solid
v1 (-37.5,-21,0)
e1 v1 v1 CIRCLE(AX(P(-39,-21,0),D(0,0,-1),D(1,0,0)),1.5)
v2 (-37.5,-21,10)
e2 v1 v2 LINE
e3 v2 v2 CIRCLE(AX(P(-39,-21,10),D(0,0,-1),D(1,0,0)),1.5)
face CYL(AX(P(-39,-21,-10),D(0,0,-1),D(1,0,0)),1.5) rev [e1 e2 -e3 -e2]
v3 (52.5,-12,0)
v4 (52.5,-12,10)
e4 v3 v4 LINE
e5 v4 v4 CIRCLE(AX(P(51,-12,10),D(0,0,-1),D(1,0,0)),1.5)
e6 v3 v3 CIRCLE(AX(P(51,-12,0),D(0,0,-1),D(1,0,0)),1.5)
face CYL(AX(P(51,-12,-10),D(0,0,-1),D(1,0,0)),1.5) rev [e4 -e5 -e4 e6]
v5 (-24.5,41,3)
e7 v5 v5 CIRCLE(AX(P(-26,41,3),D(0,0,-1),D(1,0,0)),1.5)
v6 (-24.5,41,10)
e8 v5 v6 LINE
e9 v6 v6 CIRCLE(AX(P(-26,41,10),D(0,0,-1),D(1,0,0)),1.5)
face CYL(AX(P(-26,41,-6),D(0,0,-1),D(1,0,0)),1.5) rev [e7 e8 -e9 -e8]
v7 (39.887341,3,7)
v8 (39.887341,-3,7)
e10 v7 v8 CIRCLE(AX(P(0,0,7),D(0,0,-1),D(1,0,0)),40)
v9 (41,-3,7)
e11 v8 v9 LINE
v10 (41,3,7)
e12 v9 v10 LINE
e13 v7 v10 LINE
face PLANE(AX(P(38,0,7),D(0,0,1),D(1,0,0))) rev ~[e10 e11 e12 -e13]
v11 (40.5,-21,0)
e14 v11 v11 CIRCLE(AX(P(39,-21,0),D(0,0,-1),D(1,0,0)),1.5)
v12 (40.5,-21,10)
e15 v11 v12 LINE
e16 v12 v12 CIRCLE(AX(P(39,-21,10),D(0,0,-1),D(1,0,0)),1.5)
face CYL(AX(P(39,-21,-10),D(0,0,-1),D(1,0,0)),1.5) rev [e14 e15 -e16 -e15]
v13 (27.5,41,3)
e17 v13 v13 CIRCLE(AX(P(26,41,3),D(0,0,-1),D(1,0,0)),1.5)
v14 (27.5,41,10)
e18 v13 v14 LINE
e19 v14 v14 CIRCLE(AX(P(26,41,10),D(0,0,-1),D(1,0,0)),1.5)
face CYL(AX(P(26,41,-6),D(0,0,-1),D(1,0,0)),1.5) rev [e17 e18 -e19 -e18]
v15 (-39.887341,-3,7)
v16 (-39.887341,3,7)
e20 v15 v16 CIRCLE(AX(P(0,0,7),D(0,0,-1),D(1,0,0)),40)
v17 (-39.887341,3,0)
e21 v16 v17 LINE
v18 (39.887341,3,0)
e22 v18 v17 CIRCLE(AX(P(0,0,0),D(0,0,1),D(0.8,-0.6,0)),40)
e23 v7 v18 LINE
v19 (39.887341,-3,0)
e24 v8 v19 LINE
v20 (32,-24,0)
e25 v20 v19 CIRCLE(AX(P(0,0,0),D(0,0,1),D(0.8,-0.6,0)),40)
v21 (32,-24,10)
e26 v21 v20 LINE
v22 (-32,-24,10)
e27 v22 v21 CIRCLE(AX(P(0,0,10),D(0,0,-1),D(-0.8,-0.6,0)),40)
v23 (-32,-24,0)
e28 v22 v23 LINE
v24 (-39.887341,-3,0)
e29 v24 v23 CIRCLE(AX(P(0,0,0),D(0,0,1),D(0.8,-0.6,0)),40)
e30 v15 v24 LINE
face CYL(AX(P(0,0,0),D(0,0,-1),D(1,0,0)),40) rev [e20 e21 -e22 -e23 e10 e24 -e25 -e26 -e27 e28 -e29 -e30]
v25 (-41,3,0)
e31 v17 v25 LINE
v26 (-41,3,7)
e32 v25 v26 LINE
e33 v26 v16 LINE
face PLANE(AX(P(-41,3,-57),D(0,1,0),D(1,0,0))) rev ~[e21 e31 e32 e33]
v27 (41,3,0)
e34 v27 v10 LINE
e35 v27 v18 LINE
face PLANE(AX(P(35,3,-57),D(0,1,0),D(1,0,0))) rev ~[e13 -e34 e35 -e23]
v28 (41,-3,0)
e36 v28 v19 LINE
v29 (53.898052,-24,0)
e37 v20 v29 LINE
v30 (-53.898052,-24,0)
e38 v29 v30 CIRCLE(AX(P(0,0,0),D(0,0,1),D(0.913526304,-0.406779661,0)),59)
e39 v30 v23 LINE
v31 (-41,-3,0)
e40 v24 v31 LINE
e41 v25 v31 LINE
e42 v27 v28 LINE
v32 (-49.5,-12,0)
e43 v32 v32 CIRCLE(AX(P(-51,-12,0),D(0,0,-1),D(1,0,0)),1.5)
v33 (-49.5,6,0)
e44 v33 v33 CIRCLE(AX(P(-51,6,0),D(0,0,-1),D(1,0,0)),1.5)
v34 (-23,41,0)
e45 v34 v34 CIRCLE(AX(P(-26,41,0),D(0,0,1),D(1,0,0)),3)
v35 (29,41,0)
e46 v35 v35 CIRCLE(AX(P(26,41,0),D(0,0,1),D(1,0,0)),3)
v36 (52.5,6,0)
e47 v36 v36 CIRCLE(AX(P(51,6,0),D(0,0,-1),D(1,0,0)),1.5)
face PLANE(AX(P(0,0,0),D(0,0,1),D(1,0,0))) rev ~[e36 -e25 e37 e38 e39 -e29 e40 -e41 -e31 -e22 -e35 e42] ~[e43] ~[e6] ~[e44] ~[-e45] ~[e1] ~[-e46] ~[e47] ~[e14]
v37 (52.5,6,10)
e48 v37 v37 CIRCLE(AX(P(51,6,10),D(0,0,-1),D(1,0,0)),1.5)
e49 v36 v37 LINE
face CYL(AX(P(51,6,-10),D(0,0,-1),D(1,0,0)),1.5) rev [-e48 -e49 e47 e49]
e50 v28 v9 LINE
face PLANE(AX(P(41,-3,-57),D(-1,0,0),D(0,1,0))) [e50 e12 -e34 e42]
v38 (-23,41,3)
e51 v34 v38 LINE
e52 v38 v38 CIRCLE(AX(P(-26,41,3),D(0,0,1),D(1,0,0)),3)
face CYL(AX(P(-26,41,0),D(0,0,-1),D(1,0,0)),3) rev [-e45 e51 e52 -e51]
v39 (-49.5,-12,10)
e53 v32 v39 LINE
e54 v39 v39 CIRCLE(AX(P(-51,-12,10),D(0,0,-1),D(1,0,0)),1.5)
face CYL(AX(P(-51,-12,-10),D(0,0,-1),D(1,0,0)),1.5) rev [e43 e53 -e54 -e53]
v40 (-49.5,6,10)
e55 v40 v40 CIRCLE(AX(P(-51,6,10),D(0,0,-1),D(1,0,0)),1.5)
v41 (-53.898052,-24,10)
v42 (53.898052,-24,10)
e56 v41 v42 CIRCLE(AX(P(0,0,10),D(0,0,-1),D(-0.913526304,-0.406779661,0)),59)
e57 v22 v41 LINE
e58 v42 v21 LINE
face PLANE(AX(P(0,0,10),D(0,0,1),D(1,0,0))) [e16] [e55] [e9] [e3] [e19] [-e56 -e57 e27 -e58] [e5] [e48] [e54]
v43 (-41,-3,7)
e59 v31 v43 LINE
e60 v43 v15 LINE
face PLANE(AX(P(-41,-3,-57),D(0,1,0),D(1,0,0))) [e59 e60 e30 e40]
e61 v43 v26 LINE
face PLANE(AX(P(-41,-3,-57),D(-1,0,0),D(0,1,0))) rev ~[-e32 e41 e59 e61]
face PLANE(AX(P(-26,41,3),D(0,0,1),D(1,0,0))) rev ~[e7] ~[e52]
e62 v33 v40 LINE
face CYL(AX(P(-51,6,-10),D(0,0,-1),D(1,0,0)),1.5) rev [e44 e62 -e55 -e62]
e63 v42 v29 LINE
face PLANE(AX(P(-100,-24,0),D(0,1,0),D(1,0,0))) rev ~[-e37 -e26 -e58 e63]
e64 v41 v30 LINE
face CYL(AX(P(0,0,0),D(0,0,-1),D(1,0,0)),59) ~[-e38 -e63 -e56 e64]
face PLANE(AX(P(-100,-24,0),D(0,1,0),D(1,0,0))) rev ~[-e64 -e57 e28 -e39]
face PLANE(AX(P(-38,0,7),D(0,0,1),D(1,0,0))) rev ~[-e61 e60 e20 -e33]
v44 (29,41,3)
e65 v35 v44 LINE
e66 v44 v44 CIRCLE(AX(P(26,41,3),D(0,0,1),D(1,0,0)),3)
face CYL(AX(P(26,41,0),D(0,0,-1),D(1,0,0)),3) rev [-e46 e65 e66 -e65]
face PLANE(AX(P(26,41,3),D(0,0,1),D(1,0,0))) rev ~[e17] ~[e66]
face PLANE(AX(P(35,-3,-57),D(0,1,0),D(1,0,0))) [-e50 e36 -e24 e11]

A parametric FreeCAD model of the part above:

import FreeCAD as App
import Part
import Sketcher

V = App.Vector

doc = App.newDocument("Part")
body = doc.addObject("PartDesign::Body", "Body")

sketch1 = doc.addObject("Sketcher::SketchObject", "Sketch")
body.addObject(sketch1)
sketch1.AttachmentSupport = (doc.XY_Plane, [""])
sketch1.MapMode = "FlatFace"
sketch1.AttachmentOffset = App.Placement(V(0, 0, -93), App.Rotation())
sketch1.addGeometry([
    Part.LineSegment(V(87, 3, 0), V(87, -3, 0)),
    Part.LineSegment(V(87, -3, 0), V(93, -3, 0)),
    Part.LineSegment(V(93, -3, 0), V(93, 3, 0)),
    Part.LineSegment(V(93, 3, 0), V(87, 3, 0)),
], False)
sketch1.addConstraint([
    Sketcher.Constraint("Coincident", 0, 2, 1, 1),
    Sketcher.Constraint("Coincident", 1, 2, 2, 1),
    Sketcher.Constraint("Coincident", 2, 2, 3, 1),
    Sketcher.Constraint("Coincident", 3, 2, 0, 1),
    Sketcher.Constraint("Vertical", 0),
    Sketcher.Constraint("Horizontal", 1),
    Sketcher.Constraint("Vertical", 2),
    Sketcher.Constraint("Horizontal", 3),
    Sketcher.Constraint("Equal", 3, 0),
    Sketcher.Constraint("DistanceX", 1, 1, 1, 2, 6.0),
    Sketcher.Constraint("DistanceX", -1, 1, 0, 2, 87.0),
    Sketcher.Constraint("DistanceY", 0, 2, -1, 1, 3.0),
])
pad1 = doc.addObject("PartDesign::Pad", "Pad")
body.addObject(pad1)
pad1.Profile = sketch1
pad1.Length = 64
body2 = doc.addObject("PartDesign::Body", "Body001")
body2.AllowCompound = True

sketch2 = doc.addObject("Sketcher::SketchObject", "Sketch001")
body2.addObject(sketch2)
sketch2.AttachmentSupport = (doc.getObject("XY_Plane001"), [""])
sketch2.MapMode = "FlatFace"
sketch2.AttachmentOffset = App.Placement(V(0, 0, -93), App.Rotation())
sketch2.addGeometry([
    Part.LineSegment(V(11, 3, 0), V(11, -3, 0)),
    Part.LineSegment(V(11, -3, 0), V(17, -3, 0)),
    Part.LineSegment(V(17, -3, 0), V(17, 3, 0)),
    Part.LineSegment(V(17, 3, 0), V(11, 3, 0)),
], False)
sketch2.addConstraint([
    Sketcher.Constraint("Coincident", 0, 2, 1, 1),
    Sketcher.Constraint("Coincident", 1, 2, 2, 1),
    Sketcher.Constraint("Coincident", 2, 2, 3, 1),
    Sketcher.Constraint("Coincident", 3, 2, 0, 1),
    Sketcher.Constraint("Vertical", 0),
    Sketcher.Constraint("Horizontal", 1),
    Sketcher.Constraint("Vertical", 2),
    Sketcher.Constraint("Horizontal", 3),
    Sketcher.Constraint("Equal", 3, 0),
    Sketcher.Constraint("DistanceX", 1, 1, 1, 2, 6.0),
    Sketcher.Constraint("DistanceX", -1, 1, 0, 2, 11.0),
    Sketcher.Constraint("DistanceY", 0, 2, -1, 1, 3.0),
])
pad2 = doc.addObject("PartDesign::Pad", "Pad001")
body2.addObject(pad2)
pad2.Profile = sketch2
pad2.Length = 64
doc.recompute()

boolean = doc.addObject("PartDesign::Boolean", "Boolean")
body2.addObject(boolean)
boolean.Type = "Fuse"
boolean.addObjects([body])
body3 = doc.addObject("PartDesign::Body", "Body002")
body3.AllowCompound = True
doc.recompute()

body2.Placement = App.Placement(V(-52, 0, 36), App.Rotation(V(0, 0, 1), 0))
boolean2 = doc.addObject("PartDesign::Boolean", "Boolean001")
body3.addObject(boolean2)
boolean2.Type = "Fuse"
boolean2.addObjects([body2])
body4 = doc.addObject("PartDesign::Body", "Body003")

sketch3 = doc.addObject("Sketcher::SketchObject", "Sketch002")
body4.addObject(sketch3)
sketch3.AttachmentSupport = (doc.getObject("XY_Plane003"), [""])
sketch3.MapMode = "FlatFace"
sketch3.AttachmentOffset = App.Placement(V(0, 0, -42), App.Rotation())
sketch3.addGeometry(Part.Circle(V(78, 41, 0), V(0, 0, 1), 3), False)
sketch3.addConstraint([
    Sketcher.Constraint("Diameter", 0, 6.0),
    Sketcher.Constraint("DistanceX", -1, 1, 0, 3, 78.0),
    Sketcher.Constraint("DistanceY", -1, 1, 0, 3, 41.0),
])
pad3 = doc.addObject("PartDesign::Pad", "Pad002")
body4.addObject(pad3)
pad3.Profile = sketch3
pad3.Length = 3
body5 = doc.addObject("PartDesign::Body", "Body004")
body5.AllowCompound = True

sketch4 = doc.addObject("Sketcher::SketchObject", "Sketch003")
body5.addObject(sketch4)
sketch4.AttachmentSupport = (doc.getObject("XY_Plane004"), [""])
sketch4.MapMode = "FlatFace"
sketch4.AttachmentOffset = App.Placement(V(0, 0, -42), App.Rotation())
sketch4.addGeometry(Part.Circle(V(26, 41, 0), V(0, 0, 1), 3), False)
sketch4.addConstraint([
    Sketcher.Constraint("Diameter", 0, 6.0),
    Sketcher.Constraint("DistanceX", -1, 1, 0, 3, 26.0),
    Sketcher.Constraint("DistanceY", -1, 1, 0, 3, 41.0),
])
pad4 = doc.addObject("PartDesign::Pad", "Pad003")
body5.addObject(pad4)
pad4.Profile = sketch4
pad4.Length = 3
doc.recompute()

boolean3 = doc.addObject("PartDesign::Boolean", "Boolean002")
body5.addObject(boolean3)
boolean3.Type = "Fuse"
boolean3.addObjects([body4])
body6 = doc.addObject("PartDesign::Body", "Body005")
body6.AllowCompound = True
doc.recompute()

body5.Placement = App.Placement(V(-52, 0, 42), App.Rotation(V(0, 0, 1), 0))
boolean4 = doc.addObject("PartDesign::Boolean", "Boolean003")
body6.addObject(boolean4)
boolean4.Type = "Fuse"
boolean4.addObjects([body5])
body7 = doc.addObject("PartDesign::Body", "Body006")

sketch5 = doc.addObject("Sketcher::SketchObject", "Sketch004")
body7.addObject(sketch5)
sketch5.AttachmentSupport = (doc.getObject("XY_Plane006"), [""])
sketch5.MapMode = "FlatFace"
sketch5.AttachmentOffset = App.Placement(V(0, 0, -42), App.Rotation())
sketch5.addGeometry(Part.Circle(V(78, 41, 0), V(0, 0, 1), 1.5), False)
sketch5.addConstraint([
    Sketcher.Constraint("Diameter", 0, 3.0),
    Sketcher.Constraint("DistanceX", -1, 1, 0, 3, 78.0),
    Sketcher.Constraint("DistanceY", -1, 1, 0, 3, 41.0),
])
pad5 = doc.addObject("PartDesign::Pad", "Pad004")
body7.addObject(pad5)
pad5.Profile = sketch5
pad5.Length = 32
body8 = doc.addObject("PartDesign::Body", "Body007")
body8.AllowCompound = True

sketch6 = doc.addObject("Sketcher::SketchObject", "Sketch005")
body8.addObject(sketch6)
sketch6.AttachmentSupport = (doc.getObject("XY_Plane007"), [""])
sketch6.MapMode = "FlatFace"
sketch6.AttachmentOffset = App.Placement(V(0, 0, -42), App.Rotation())
sketch6.addGeometry(Part.Circle(V(26, 41, 0), V(0, 0, 1), 1.5), False)
sketch6.addConstraint([
    Sketcher.Constraint("Diameter", 0, 3.0),
    Sketcher.Constraint("DistanceX", -1, 1, 0, 3, 26.0),
    Sketcher.Constraint("DistanceY", -1, 1, 0, 3, 41.0),
])
pad6 = doc.addObject("PartDesign::Pad", "Pad005")
body8.addObject(pad6)
pad6.Profile = sketch6
pad6.Length = 32
doc.recompute()

boolean5 = doc.addObject("PartDesign::Boolean", "Boolean004")
body8.addObject(boolean5)
boolean5.Type = "Fuse"
boolean5.addObjects([body7])
body9 = doc.addObject("PartDesign::Body", "Body008")
body9.AllowCompound = True
doc.recompute()

body8.Placement = App.Placement(V(-52, 0, 36), App.Rotation(V(0, 0, 1), 0))
boolean6 = doc.addObject("PartDesign::Boolean", "Boolean005")
body9.addObject(boolean6)
boolean6.Type = "Fuse"
boolean6.addObjects([body8])
body10 = doc.addObject("PartDesign::Body", "Body009")

sketch7 = doc.addObject("Sketcher::SketchObject", "Sketch006")
body10.addObject(sketch7)
sketch7.AttachmentSupport = (doc.getObject("XY_Plane009"), [""])
sketch7.MapMode = "FlatFace"
sketch7.AttachmentOffset = App.Placement(V(0, 0, -60), App.Rotation())
sketch7.addGeometry(Part.Circle(V(14, 0, 0), V(0, 0, 1), 1.5), False)
sketch7.addConstraint([
    Sketcher.Constraint("PointOnObject", 0, 3, -1),
    Sketcher.Constraint("Diameter", 0, 3.0),
    Sketcher.Constraint("DistanceX", -1, 1, 0, 3, 14.0),
])
pad7 = doc.addObject("PartDesign::Pad", "Pad006")
body10.addObject(pad7)
pad7.Profile = sketch7
pad7.Length = 100
body11 = doc.addObject("PartDesign::Body", "Body010")
body11.AllowCompound = True

sketch8 = doc.addObject("Sketcher::SketchObject", "Sketch007")
body11.addObject(sketch8)
sketch8.AttachmentSupport = (doc.getObject("XY_Plane010"), [""])
sketch8.MapMode = "FlatFace"
sketch8.AttachmentOffset = App.Placement(V(0, 0, -60), App.Rotation())
sketch8.addGeometry(Part.Circle(V(90, 0, 0), V(0, 0, 1), 1.5), False)
sketch8.addConstraint([
    Sketcher.Constraint("PointOnObject", 0, 3, -1),
    Sketcher.Constraint("Diameter", 0, 3.0),
    Sketcher.Constraint("DistanceX", -1, 1, 0, 3, 90.0),
])
pad8 = doc.addObject("PartDesign::Pad", "Pad007")
body11.addObject(pad8)
pad8.Profile = sketch8
pad8.Length = 100
doc.recompute()

boolean7 = doc.addObject("PartDesign::Boolean", "Boolean006")
body11.addObject(boolean7)
boolean7.Type = "Fuse"
boolean7.addObjects([body10])
body12 = doc.addObject("PartDesign::Body", "Body011")
body12.AllowCompound = True
doc.recompute()

body11.Placement = App.Placement(V(-52, 0, 0), App.Rotation(V(0, 0, 1), 0))
boolean8 = doc.addObject("PartDesign::Boolean", "Boolean007")
body12.addObject(boolean8)
boolean8.Type = "Fuse"
boolean8.addObjects([body11])
doc.recompute()

boolean9 = doc.addObject("PartDesign::Boolean", "Boolean008")
body12.addObject(boolean9)
boolean9.Type = "Fuse"
boolean9.addObjects([body9])
body13 = doc.addObject("PartDesign::Body", "Body012")

sketch9 = doc.addObject("Sketcher::SketchObject", "Sketch008")
body13.addObject(sketch9)
sketch9.AttachmentSupport = (doc.getObject("XY_Plane012"), [""])
sketch9.MapMode = "FlatFace"
sketch9.addGeometry(Part.Circle(V(-51, 6, 0), V(0, 0, 1), 1.5), False)
sketch9.addConstraint([
    Sketcher.Constraint("Diameter", 0, 3.0),
    Sketcher.Constraint("DistanceX", 0, 3, -1, 1, 51.0),
    Sketcher.Constraint("DistanceY", -1, 1, 0, 3, 6.0),
])
pad9 = doc.addObject("PartDesign::Pad", "Pad008")
body13.addObject(pad9)
pad9.Profile = sketch9
pad9.Length = 50
body14 = doc.addObject("PartDesign::Body", "Body013")

sketch10 = doc.addObject("Sketcher::SketchObject", "Sketch009")
body14.addObject(sketch10)
sketch10.AttachmentSupport = (doc.getObject("XY_Plane013"), [""])
sketch10.MapMode = "FlatFace"
sketch10.addGeometry(Part.Circle(V(-24, 18, 0), V(0, 0, 1), 1.5), False)
sketch10.addConstraint([
    Sketcher.Constraint("Diameter", 0, 3.0),
    Sketcher.Constraint("DistanceX", 0, 3, -1, 1, 24.0),
    Sketcher.Constraint("DistanceY", -1, 1, 0, 3, 18.0),
])
pad10 = doc.addObject("PartDesign::Pad", "Pad009")
body14.addObject(pad10)
pad10.Profile = sketch10
pad10.Length = 50
body15 = doc.addObject("PartDesign::Body", "Body014")

sketch11 = doc.addObject("Sketcher::SketchObject", "Sketch010")
body15.addObject(sketch11)
sketch11.AttachmentSupport = (doc.getObject("XY_Plane014"), [""])
sketch11.MapMode = "FlatFace"
sketch11.addGeometry(Part.Circle(V(24, 18, 0), V(0, 0, 1), 1.5), False)
sketch11.addConstraint([
    Sketcher.Constraint("Diameter", 0, 3.0),
    Sketcher.Constraint("DistanceX", -1, 1, 0, 3, 24.0),
    Sketcher.Constraint("DistanceY", -1, 1, 0, 3, 18.0),
])
pad11 = doc.addObject("PartDesign::Pad", "Pad010")
body15.addObject(pad11)
pad11.Profile = sketch11
pad11.Length = 50
body16 = doc.addObject("PartDesign::Body", "Body015")
body16.AllowCompound = True

sketch12 = doc.addObject("Sketcher::SketchObject", "Sketch011")
body16.addObject(sketch12)
sketch12.AttachmentSupport = (doc.getObject("XY_Plane015"), [""])
sketch12.MapMode = "FlatFace"
sketch12.addGeometry(Part.Circle(V(51, 6, 0), V(0, 0, 1), 1.5), False)
sketch12.addConstraint([
    Sketcher.Constraint("Diameter", 0, 3.0),
    Sketcher.Constraint("DistanceX", -1, 1, 0, 3, 51.0),
    Sketcher.Constraint("DistanceY", -1, 1, 0, 3, 6.0),
])
pad12 = doc.addObject("PartDesign::Pad", "Pad011")
body16.addObject(pad12)
pad12.Profile = sketch12
pad12.Length = 50
doc.recompute()

boolean10 = doc.addObject("PartDesign::Boolean", "Boolean009")
body16.addObject(boolean10)
boolean10.Type = "Fuse"
boolean10.addObjects([body13])
doc.recompute()

boolean11 = doc.addObject("PartDesign::Boolean", "Boolean010")
body16.addObject(boolean11)
boolean11.Type = "Fuse"
boolean11.addObjects([body14])
doc.recompute()

boolean12 = doc.addObject("PartDesign::Boolean", "Boolean011")
body16.addObject(boolean12)
boolean12.Type = "Fuse"
boolean12.addObjects([body15])
body17 = doc.addObject("PartDesign::Body", "Body016")

sketch13 = doc.addObject("Sketcher::SketchObject", "Sketch012")
body17.addObject(sketch13)
sketch13.AttachmentSupport = (doc.getObject("XY_Plane016"), [""])
sketch13.MapMode = "FlatFace"
sketch13.addGeometry(Part.Circle(V(51, -12, 0), V(0, 0, 1), 1.5), False)
sketch13.addConstraint([
    Sketcher.Constraint("Diameter", 0, 3.0),
    Sketcher.Constraint("DistanceX", -1, 1, 0, 3, 51.0),
    Sketcher.Constraint("DistanceY", 0, 3, -1, 1, 12.0),
])
pad13 = doc.addObject("PartDesign::Pad", "Pad012")
body17.addObject(pad13)
pad13.Profile = sketch13
pad13.Length = 100
body18 = doc.addObject("PartDesign::Body", "Body017")
body18.AllowCompound = True

sketch14 = doc.addObject("Sketcher::SketchObject", "Sketch013")
body18.addObject(sketch14)
sketch14.AttachmentSupport = (doc.getObject("XY_Plane017"), [""])
sketch14.MapMode = "FlatFace"
sketch14.addGeometry(Part.Circle(V(-51, -12, 0), V(0, 0, 1), 1.5), False)
sketch14.addConstraint([
    Sketcher.Constraint("Diameter", 0, 3.0),
    Sketcher.Constraint("DistanceX", 0, 3, -1, 1, 51.0),
    Sketcher.Constraint("DistanceY", 0, 3, -1, 1, 12.0),
])
pad14 = doc.addObject("PartDesign::Pad", "Pad013")
body18.addObject(pad14)
pad14.Profile = sketch14
pad14.Length = 100
doc.recompute()

boolean13 = doc.addObject("PartDesign::Boolean", "Boolean012")
body18.addObject(boolean13)
boolean13.Type = "Fuse"
boolean13.addObjects([body17])
body19 = doc.addObject("PartDesign::Body", "Body018")

sketch15 = doc.addObject("Sketcher::SketchObject", "Sketch014")
body19.addObject(sketch15)
sketch15.AttachmentSupport = (doc.getObject("XY_Plane018"), [""])
sketch15.MapMode = "FlatFace"
sketch15.addGeometry(Part.Circle(V(39, -21, 0), V(0, 0, 1), 1.5), False)
sketch15.addConstraint([
    Sketcher.Constraint("Diameter", 0, 3.0),
    Sketcher.Constraint("DistanceX", -1, 1, 0, 3, 39.0),
    Sketcher.Constraint("DistanceY", 0, 3, -1, 1, 21.0),
])
pad15 = doc.addObject("PartDesign::Pad", "Pad014")
body19.addObject(pad15)
pad15.Profile = sketch15
pad15.Length = 100
body20 = doc.addObject("PartDesign::Body", "Body019")
body20.AllowCompound = True

sketch16 = doc.addObject("Sketcher::SketchObject", "Sketch015")
body20.addObject(sketch16)
sketch16.AttachmentSupport = (doc.getObject("XY_Plane019"), [""])
sketch16.MapMode = "FlatFace"
sketch16.addGeometry(Part.Circle(V(-39, -21, 0), V(0, 0, 1), 1.5), False)
sketch16.addConstraint([
    Sketcher.Constraint("Diameter", 0, 3.0),
    Sketcher.Constraint("DistanceX", 0, 3, -1, 1, 39.0),
    Sketcher.Constraint("DistanceY", 0, 3, -1, 1, 21.0),
])
pad16 = doc.addObject("PartDesign::Pad", "Pad015")
body20.addObject(pad16)
pad16.Profile = sketch16
pad16.Length = 100
doc.recompute()

boolean14 = doc.addObject("PartDesign::Boolean", "Boolean013")
body20.addObject(boolean14)
boolean14.Type = "Fuse"
boolean14.addObjects([body19])
doc.recompute()

boolean15 = doc.addObject("PartDesign::Boolean", "Boolean014")
body20.addObject(boolean15)
boolean15.Type = "Fuse"
boolean15.addObjects([body16])
doc.recompute()

boolean16 = doc.addObject("PartDesign::Boolean", "Boolean015")
body20.addObject(boolean16)
boolean16.Type = "Fuse"
boolean16.addObjects([body18])
body21 = doc.addObject("PartDesign::Body", "Body020")
body21.AllowCompound = True
doc.recompute()

body20.Placement = App.Placement(V(0, 0, -10), App.Rotation(V(0, 0, 1), 0))
boolean17 = doc.addObject("PartDesign::Boolean", "Boolean016")
body21.addObject(boolean17)
boolean17.Type = "Fuse"
boolean17.addObjects([body20])
body22 = doc.addObject("PartDesign::Body", "Body021")

sketch17 = doc.addObject("Sketcher::SketchObject", "Sketch016")
body22.addObject(sketch17)
sketch17.AttachmentSupport = (doc.getObject("XY_Plane021"), [""])
sketch17.MapMode = "FlatFace"
sketch17.addGeometry([
    Part.LineSegment(V(-100, -24, 0), V(-100, -124, 0)),
    Part.LineSegment(V(-100, -124, 0), V(100, -124, 0)),
    Part.LineSegment(V(100, -124, 0), V(100, -24, 0)),
    Part.LineSegment(V(100, -24, 0), V(-100, -24, 0)),
], False)
sketch17.addConstraint([
    Sketcher.Constraint("Coincident", 0, 2, 1, 1),
    Sketcher.Constraint("Coincident", 1, 2, 2, 1),
    Sketcher.Constraint("Coincident", 2, 2, 3, 1),
    Sketcher.Constraint("Coincident", 3, 2, 0, 1),
    Sketcher.Constraint("Vertical", 0),
    Sketcher.Constraint("Horizontal", 1),
    Sketcher.Constraint("Vertical", 2),
    Sketcher.Constraint("Horizontal", 3),
    Sketcher.Constraint("DistanceX", 1, 1, 1, 2, 200.0),
    Sketcher.Constraint("DistanceY", 0, 2, 0, 1, 100.0),
    Sketcher.Constraint("DistanceX", 0, 2, -1, 1, 100.0),
    Sketcher.Constraint("DistanceY", 0, 2, -1, 1, 124.0),
])
pad17 = doc.addObject("PartDesign::Pad", "Pad016")
body22.addObject(pad17)
pad17.Profile = sketch17
pad17.Length = 32
body23 = doc.addObject("PartDesign::Body", "Body022")

sketch18 = doc.addObject("Sketcher::SketchObject", "Sketch017")
body23.addObject(sketch18)
sketch18.AttachmentSupport = (doc.getObject("XY_Plane022"), [""])
sketch18.MapMode = "FlatFace"
sketch18.addGeometry([
    Part.Circle(V(0, 0, 0), V(0, 0, 1), 59),
    Part.Circle(V(0, 0, 0), V(0, 0, 1), 40),
], False)
sketch18.addConstraint([
    Sketcher.Constraint("Coincident", 0, 3, -1, 1),
    Sketcher.Constraint("Coincident", 1, 3, -1, 1),
    Sketcher.Constraint("Diameter", 0, 118.0),
    Sketcher.Constraint("Diameter", 1, 80.0),
])
pad18 = doc.addObject("PartDesign::Pad", "Pad017")
body23.addObject(pad18)
pad18.Profile = sketch18
pad18.Length = 10
doc.recompute()

boolean18 = doc.addObject("PartDesign::Boolean", "Boolean017")
body23.addObject(boolean18)
boolean18.Type = "Cut"
boolean18.addObjects([body22])
doc.recompute()

boolean19 = doc.addObject("PartDesign::Boolean", "Boolean018")
body23.addObject(boolean19)
boolean19.Type = "Cut"
boolean19.addObjects([body21])
doc.recompute()

boolean20 = doc.addObject("PartDesign::Boolean", "Boolean019")
body23.addObject(boolean20)
boolean20.Type = "Cut"
boolean20.addObjects([body12])
doc.recompute()

boolean21 = doc.addObject("PartDesign::Boolean", "Boolean020")
body23.addObject(boolean21)
boolean21.Type = "Cut"
boolean21.addObjects([body6])
doc.recompute()

boolean22 = doc.addObject("PartDesign::Boolean", "Boolean021")
body23.addObject(boolean22)
boolean22.Type = "Cut"
boolean22.addObjects([body3])

doc.recompute()
